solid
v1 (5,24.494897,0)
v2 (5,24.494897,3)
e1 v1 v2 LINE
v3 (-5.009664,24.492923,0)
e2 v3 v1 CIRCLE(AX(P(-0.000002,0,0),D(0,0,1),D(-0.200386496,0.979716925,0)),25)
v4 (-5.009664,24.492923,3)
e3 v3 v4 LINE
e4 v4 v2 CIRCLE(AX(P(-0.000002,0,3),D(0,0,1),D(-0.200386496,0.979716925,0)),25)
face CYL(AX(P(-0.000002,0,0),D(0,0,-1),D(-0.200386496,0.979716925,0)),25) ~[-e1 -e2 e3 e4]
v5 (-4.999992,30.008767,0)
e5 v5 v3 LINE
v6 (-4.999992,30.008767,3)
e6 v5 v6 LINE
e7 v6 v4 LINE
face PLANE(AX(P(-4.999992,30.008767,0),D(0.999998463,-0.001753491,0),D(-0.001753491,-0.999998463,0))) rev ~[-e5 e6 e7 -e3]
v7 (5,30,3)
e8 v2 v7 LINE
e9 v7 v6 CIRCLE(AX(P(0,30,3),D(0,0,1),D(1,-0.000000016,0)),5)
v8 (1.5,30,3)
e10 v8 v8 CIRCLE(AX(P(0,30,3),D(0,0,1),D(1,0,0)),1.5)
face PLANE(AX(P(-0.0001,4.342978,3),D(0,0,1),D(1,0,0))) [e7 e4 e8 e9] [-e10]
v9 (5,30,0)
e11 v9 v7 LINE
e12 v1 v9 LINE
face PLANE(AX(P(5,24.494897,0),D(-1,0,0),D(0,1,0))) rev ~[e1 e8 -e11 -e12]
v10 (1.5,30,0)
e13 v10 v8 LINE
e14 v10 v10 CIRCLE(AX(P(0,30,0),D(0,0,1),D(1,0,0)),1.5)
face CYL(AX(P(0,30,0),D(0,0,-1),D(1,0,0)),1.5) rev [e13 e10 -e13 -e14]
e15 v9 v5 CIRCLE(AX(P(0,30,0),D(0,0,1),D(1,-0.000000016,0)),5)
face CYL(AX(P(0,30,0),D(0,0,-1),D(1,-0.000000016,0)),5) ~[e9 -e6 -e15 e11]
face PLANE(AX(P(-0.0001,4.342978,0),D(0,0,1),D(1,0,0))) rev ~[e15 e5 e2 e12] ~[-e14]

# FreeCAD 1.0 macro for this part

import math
import FreeCAD as App
import Part
import Sketcher
from FreeCAD import Vector
Q = App.Units.Quantity

doc = App.newDocument("Part")
body = doc.addObject("PartDesign::Body", "Body")

# Sketch on XY plane
sketch1 = doc.addObject("Sketcher::SketchObject", "Sketch")
body.addObject(sketch1)
sketch1.AttachmentSupport = (doc.XY_Plane, [""])
sketch1.MapMode = "FlatFace"
sketch1.addGeometry([
    Part.LineSegment(Vector(-5, 30, 0), Vector(-5, 24.5, 0)),  # 0
    Part.ArcOfCircle(Part.Circle(Vector(0, 0, 0), Vector(0, 0, 1), 25), math.radians(102), math.radians(438)),  # 1
    Part.LineSegment(Vector(5, 24.5, 0), Vector(5, 30, 0)),  # 2
    Part.ArcOfCircle(Part.Circle(Vector(0, 30, 0), Vector(0, 0, 1), 5), math.radians(0), math.radians(180)),  # 3
    Part.Circle(Vector(0, 30, 0), Vector(0, 0, 1), 1.5),  # 4
], False)
sketch1.addConstraint([
    Sketcher.Constraint("Coincident", 0, 2, 1, 1),
    Sketcher.Constraint("Coincident", 1, 2, 2, 1),
    Sketcher.Constraint("Tangent", 2, 2, 3, 1),
    Sketcher.Constraint("Tangent", 3, 2, 0, 1),
    Sketcher.Constraint("Vertical", 2),
    Sketcher.Constraint("Coincident", 1, 3, -1, 1),
    Sketcher.Constraint("Coincident", 4, 3, 3, 3),
    Sketcher.Constraint("PointOnObject", 3, 3, -2),
    Sketcher.Constraint("Diameter", 4, Q("3 mm")),
    Sketcher.Constraint("Radius", 1, Q("25 mm")),
    Sketcher.Constraint("Radius", 3, Q("5 mm")),
    Sketcher.Constraint("DistanceY", -1, 1, 3, 3, Q("30 mm")),
    Sketcher.Constraint("DistanceX", 0, 2, 3, 2, Q("0.009672 mm")),
])
pad1 = doc.addObject("PartDesign::Pad", "Pad")
body.addObject(pad1)
pad1.Profile = sketch1
pad1.Length = 3

doc.recompute()
